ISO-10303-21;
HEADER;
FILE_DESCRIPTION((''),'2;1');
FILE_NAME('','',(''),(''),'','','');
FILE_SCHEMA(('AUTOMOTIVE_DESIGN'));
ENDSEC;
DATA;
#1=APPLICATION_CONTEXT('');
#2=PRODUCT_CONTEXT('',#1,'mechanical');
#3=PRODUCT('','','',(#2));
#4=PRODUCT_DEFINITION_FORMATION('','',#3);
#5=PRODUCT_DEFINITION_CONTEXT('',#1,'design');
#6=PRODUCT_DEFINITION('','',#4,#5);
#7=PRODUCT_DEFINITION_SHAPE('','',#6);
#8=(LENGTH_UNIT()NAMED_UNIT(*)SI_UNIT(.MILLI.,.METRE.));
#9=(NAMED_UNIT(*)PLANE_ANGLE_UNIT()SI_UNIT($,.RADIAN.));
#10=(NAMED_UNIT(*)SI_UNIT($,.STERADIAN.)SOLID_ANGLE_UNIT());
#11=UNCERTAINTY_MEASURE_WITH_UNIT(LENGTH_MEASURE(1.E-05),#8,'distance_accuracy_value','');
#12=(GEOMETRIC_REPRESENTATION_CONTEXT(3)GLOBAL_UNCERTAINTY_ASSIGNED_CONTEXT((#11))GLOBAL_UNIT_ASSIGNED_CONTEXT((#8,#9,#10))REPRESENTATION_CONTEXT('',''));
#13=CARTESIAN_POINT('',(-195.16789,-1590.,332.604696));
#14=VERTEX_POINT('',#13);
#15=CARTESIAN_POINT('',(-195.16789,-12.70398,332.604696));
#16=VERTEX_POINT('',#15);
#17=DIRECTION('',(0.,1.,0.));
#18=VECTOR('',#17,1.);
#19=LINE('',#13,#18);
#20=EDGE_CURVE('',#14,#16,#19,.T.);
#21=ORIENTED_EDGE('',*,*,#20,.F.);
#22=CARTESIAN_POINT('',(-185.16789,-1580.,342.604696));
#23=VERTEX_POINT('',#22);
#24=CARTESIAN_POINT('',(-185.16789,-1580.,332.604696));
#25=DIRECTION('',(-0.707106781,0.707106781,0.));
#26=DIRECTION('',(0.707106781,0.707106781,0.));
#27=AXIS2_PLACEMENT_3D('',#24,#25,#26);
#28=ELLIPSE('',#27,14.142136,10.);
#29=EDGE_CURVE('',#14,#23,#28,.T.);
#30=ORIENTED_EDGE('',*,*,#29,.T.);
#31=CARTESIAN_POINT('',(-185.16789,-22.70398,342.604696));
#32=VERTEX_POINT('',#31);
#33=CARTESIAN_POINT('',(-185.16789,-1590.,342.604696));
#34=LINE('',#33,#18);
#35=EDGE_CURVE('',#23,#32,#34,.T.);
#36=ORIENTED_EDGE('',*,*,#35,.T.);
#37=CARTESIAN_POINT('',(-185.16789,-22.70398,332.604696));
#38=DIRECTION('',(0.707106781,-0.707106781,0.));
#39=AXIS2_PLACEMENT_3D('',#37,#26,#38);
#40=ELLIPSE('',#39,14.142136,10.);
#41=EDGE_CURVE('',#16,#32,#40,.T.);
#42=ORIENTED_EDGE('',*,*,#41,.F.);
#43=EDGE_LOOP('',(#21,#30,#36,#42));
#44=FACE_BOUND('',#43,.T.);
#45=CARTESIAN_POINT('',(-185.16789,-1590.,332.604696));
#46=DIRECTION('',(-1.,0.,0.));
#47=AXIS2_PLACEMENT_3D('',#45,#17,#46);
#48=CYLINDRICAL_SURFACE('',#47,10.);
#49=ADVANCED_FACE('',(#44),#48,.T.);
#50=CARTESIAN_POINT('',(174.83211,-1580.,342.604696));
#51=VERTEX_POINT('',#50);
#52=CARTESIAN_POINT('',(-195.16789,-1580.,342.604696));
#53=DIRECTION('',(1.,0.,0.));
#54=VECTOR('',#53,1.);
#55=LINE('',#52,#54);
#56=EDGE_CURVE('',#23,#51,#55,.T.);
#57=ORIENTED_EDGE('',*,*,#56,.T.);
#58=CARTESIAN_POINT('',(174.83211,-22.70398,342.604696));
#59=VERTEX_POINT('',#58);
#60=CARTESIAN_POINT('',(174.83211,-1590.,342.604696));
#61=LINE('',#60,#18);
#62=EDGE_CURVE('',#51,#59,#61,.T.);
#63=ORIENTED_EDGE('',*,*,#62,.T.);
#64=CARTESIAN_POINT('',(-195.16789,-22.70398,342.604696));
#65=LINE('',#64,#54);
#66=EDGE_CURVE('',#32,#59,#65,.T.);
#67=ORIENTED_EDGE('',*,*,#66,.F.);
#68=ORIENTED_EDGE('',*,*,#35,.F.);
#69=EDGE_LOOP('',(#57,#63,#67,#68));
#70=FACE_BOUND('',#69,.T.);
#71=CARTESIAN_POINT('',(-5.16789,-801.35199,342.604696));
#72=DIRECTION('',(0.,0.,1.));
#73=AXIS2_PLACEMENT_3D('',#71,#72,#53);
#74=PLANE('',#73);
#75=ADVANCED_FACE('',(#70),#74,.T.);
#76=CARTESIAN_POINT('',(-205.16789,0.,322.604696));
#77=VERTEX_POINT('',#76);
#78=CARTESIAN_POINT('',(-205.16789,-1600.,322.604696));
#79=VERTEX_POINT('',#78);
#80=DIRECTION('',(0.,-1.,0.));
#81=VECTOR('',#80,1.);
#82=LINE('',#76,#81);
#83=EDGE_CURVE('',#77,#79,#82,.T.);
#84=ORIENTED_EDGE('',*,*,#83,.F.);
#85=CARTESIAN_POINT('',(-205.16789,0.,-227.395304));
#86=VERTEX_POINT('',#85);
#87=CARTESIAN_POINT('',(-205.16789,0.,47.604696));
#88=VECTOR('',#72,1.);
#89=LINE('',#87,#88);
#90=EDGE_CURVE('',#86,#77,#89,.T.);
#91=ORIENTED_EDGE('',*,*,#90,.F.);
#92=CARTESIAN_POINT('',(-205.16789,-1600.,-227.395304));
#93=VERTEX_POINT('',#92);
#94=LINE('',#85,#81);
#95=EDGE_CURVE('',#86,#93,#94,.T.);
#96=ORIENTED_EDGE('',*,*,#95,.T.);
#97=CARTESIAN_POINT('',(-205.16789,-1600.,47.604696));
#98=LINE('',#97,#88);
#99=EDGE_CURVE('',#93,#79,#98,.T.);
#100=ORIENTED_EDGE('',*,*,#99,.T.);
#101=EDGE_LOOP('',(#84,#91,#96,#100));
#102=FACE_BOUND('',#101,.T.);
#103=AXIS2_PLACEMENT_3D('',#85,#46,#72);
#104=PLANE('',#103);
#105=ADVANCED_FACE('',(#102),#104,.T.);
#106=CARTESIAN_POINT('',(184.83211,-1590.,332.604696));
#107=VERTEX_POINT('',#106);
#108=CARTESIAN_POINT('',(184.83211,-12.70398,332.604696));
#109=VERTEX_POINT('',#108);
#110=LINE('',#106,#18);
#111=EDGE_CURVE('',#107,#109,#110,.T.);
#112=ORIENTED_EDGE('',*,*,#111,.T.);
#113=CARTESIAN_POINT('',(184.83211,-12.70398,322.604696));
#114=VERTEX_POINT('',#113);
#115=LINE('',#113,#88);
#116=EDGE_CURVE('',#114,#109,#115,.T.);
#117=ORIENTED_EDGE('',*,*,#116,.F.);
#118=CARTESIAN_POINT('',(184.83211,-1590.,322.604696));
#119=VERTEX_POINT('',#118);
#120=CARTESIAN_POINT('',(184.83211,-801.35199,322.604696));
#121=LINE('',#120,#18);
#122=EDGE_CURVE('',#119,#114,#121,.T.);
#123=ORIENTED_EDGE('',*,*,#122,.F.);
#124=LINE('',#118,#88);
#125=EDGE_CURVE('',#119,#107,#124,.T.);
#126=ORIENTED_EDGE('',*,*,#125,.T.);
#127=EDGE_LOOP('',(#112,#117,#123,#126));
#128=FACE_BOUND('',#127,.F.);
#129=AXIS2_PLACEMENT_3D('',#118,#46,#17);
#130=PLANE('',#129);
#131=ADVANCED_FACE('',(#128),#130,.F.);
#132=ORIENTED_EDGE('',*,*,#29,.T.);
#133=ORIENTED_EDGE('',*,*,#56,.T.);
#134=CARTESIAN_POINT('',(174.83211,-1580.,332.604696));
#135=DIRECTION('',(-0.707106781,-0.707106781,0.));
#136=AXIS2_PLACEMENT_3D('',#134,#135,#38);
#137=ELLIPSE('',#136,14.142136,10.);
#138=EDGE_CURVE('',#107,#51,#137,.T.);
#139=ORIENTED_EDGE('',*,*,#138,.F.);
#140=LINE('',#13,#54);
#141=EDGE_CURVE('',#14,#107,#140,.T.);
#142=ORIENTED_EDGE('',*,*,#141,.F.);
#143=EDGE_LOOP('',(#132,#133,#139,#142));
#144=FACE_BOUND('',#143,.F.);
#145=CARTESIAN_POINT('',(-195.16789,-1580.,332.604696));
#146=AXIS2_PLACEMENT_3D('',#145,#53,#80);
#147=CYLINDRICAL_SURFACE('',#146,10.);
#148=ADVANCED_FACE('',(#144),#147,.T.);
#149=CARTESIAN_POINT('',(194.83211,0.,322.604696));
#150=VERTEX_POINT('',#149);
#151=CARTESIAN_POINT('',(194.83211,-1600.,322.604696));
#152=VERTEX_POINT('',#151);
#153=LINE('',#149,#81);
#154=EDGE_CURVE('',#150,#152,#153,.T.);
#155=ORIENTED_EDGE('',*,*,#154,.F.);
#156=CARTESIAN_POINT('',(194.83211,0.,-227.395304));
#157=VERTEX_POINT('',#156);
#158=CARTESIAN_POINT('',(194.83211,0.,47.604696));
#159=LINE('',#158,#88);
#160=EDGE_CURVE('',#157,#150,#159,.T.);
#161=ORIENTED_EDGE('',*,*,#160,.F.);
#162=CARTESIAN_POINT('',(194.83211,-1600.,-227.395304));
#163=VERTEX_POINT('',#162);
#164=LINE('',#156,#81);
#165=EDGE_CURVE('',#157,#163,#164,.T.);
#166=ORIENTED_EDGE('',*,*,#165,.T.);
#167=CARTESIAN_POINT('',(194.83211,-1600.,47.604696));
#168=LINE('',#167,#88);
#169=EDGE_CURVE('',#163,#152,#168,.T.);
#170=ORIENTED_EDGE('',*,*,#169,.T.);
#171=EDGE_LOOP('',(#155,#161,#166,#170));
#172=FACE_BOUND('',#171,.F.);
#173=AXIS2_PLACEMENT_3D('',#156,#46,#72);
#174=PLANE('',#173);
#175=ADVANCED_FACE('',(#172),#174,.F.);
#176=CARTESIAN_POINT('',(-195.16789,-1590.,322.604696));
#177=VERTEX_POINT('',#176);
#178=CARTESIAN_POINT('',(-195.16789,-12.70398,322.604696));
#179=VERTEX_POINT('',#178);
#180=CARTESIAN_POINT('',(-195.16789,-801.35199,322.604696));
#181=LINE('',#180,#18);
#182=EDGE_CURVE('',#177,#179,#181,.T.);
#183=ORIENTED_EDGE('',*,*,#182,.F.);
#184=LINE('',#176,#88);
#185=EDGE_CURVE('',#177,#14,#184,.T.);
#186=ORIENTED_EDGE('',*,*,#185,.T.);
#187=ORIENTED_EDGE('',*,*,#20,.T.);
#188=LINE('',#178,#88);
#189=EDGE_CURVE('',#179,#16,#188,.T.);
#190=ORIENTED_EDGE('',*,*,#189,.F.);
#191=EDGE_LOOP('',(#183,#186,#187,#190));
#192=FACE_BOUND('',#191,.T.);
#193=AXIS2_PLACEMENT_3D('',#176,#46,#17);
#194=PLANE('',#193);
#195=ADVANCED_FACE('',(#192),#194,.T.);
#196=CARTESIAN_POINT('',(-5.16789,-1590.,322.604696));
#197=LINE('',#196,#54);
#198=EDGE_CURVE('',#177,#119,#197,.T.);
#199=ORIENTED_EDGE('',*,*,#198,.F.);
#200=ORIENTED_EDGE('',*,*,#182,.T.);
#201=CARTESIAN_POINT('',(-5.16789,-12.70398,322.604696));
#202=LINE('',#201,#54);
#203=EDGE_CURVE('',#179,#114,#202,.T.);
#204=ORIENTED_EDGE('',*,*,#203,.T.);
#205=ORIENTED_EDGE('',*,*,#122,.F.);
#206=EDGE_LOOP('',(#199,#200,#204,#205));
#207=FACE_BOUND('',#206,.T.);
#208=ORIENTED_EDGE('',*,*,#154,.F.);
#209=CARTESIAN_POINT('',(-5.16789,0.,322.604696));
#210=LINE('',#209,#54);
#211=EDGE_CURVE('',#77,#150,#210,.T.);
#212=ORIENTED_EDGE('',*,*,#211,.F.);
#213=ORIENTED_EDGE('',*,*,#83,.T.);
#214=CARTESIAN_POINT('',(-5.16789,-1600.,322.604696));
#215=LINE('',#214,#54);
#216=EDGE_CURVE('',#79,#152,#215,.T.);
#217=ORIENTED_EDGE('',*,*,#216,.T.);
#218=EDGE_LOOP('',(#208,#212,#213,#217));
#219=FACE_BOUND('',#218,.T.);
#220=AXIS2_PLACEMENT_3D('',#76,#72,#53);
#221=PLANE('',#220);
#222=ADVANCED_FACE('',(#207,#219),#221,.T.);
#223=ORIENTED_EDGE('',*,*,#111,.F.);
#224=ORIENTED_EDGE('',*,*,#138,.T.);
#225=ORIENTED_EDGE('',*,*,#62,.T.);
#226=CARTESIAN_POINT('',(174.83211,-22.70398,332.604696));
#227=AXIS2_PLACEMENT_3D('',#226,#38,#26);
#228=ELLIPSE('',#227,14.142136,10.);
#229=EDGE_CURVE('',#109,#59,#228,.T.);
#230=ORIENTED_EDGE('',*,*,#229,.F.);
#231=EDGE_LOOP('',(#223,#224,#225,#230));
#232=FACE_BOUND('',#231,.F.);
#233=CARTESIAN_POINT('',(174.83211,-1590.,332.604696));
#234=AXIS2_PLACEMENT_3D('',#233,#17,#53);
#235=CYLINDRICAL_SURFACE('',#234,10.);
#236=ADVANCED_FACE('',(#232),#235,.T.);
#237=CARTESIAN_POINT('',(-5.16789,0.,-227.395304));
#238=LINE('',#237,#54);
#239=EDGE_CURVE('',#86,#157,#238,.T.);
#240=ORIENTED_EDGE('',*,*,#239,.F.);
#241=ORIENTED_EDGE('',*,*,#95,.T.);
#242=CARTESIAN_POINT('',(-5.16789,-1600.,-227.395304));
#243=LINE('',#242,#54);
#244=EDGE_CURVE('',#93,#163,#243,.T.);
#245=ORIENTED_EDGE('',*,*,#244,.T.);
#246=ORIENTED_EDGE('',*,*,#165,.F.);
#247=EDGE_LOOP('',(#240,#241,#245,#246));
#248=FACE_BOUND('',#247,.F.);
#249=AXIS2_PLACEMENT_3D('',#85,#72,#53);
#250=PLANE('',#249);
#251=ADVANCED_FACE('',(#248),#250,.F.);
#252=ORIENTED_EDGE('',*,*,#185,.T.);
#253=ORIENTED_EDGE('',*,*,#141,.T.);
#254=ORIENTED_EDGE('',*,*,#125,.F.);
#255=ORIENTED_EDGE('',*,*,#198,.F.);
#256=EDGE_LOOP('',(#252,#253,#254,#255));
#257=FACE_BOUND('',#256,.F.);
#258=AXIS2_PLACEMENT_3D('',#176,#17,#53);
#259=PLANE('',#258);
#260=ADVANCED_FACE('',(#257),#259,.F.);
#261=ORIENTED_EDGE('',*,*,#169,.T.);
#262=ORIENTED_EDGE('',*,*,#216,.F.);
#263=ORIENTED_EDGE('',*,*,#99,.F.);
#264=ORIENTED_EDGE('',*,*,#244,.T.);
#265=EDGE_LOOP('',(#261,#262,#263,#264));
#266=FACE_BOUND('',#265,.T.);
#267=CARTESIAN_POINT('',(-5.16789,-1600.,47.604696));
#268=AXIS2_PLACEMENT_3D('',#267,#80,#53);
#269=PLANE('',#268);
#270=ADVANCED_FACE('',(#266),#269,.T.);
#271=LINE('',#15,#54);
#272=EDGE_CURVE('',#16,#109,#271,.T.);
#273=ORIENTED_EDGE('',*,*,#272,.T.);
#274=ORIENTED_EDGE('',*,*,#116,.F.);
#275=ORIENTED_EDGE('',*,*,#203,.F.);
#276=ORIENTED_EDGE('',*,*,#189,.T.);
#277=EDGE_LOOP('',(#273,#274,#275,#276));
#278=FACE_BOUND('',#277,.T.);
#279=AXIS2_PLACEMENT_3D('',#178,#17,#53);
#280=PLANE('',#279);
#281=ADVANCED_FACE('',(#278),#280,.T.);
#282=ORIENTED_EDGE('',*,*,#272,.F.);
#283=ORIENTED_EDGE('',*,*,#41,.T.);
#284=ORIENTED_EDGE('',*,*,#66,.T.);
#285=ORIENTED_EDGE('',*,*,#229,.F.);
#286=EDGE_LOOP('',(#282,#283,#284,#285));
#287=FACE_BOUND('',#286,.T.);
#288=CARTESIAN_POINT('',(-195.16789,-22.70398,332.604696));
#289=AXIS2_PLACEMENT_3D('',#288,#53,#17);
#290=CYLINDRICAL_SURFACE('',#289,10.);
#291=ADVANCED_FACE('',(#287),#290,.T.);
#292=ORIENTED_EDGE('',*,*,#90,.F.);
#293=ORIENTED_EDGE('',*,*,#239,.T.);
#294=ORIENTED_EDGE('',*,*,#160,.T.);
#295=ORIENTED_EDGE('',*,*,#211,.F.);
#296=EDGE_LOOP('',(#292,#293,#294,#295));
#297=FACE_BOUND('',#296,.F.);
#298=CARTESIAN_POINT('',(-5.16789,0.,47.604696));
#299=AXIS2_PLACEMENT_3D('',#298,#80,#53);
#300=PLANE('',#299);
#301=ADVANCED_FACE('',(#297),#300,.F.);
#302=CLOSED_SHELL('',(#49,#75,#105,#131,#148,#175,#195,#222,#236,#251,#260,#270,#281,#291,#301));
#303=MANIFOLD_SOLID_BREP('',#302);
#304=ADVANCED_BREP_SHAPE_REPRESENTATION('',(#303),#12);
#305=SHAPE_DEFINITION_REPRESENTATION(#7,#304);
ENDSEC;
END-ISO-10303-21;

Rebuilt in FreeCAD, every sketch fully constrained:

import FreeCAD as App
import Part
import Sketcher
from FreeCAD import Vector
Q = App.Units.Quantity


def edges_at(feature, points):
    """Names of the edges that pass closest to the given points."""
    edges = feature.Shape.Edges
    near = lambda p: min(range(len(edges)), key=lambda i: edges[i].distToShape(Part.Vertex(*p))[0])
    return sorted({f"Edge{near(p) + 1}" for p in points})


def add_polygon(sketch, points):
    """Adds a closed chain of lines whose ends are joined by coincident constraints."""
    first, n = sketch.GeometryCount, len(points)
    for a, b in zip(points, points[1:] + points[:1]):
        sketch.addGeometry(Part.LineSegment(App.Vector(*a, 0), App.Vector(*b, 0)), False)
    for i in range(n):
        sketch.addConstraint(Sketcher.Constraint("Coincident", first + i, 2, first + (i + 1) % n, 1))

doc = App.newDocument("Part")
body = doc.addObject("PartDesign::Body", "Body")

sketch1 = doc.addObject("Sketcher::SketchObject", "Sketch")
body.addObject(sketch1)
sketch1.AttachmentSupport = (doc.XZ_Plane, [""])
sketch1.MapMode = "FlatFace"
add_polygon(sketch1, [(-205, 323), (-205, -227), (195, -227), (195, 323)])
sketch1.addConstraint([
    Sketcher.Constraint("Vertical", 0),
    Sketcher.Constraint("Horizontal", 1),
    Sketcher.Constraint("Vertical", 2),
    Sketcher.Constraint("Horizontal", 3),
    Sketcher.Constraint("DistanceX", 1, 1, 1, 2, Q("400 mm")),
    Sketcher.Constraint("DistanceY", 0, 2, 0, 1, Q("550 mm")),
    Sketcher.Constraint("DistanceX", 0, 2, -1, 1, Q("205.16789 mm")),
    Sketcher.Constraint("DistanceY", 0, 2, -1, 1, Q("227.395304 mm")),
])
pad1 = doc.addObject("PartDesign::Pad", "Pad")
body.addObject(pad1)
pad1.Profile = sketch1
pad1.Length = 1600

sketch2 = doc.addObject("Sketcher::SketchObject", "Sketch001")
body.addObject(sketch2)
sketch2.AttachmentSupport = (doc.XY_Plane, [""])
sketch2.MapMode = "FlatFace"
sketch2.AttachmentOffset = App.Placement(Vector(0, 0, 322.604696), App.Rotation())
add_polygon(sketch2, [(-195, -13), (-195, -1590), (185, -1590), (185, -13)])
sketch2.addConstraint([
    Sketcher.Constraint("Vertical", 0),
    Sketcher.Constraint("Horizontal", 1),
    Sketcher.Constraint("Vertical", 2),
    Sketcher.Constraint("Horizontal", 3),
    Sketcher.Constraint("DistanceX", 1, 1, 1, 2, Q("380 mm")),
    Sketcher.Constraint("DistanceY", 0, 2, -1, 1, Q("1590 mm")),
    Sketcher.Constraint("DistanceY", 0, 2, 0, 1, Q("1577.29602 mm")),
    Sketcher.Constraint("DistanceX", 0, 2, -1, 1, Q("195.16789 mm")),
])
pad2 = doc.addObject("PartDesign::Pad", "Pad001")
body.addObject(pad2)
pad2.Profile = sketch2
pad2.Length = 20
doc.recompute()

fillet = doc.addObject("PartDesign::Fillet", "Fillet")
body.addObject(fillet)
fillet.Base = (pad2, edges_at(pad2, [
    (-5.168, -12.704, 342.605),
    (-195.168, -801.352, 342.605),
    (-5.168, -1590, 342.605),
    (184.832, -801.352, 342.605),
]))
fillet.Radius = 10

doc.recompute()
